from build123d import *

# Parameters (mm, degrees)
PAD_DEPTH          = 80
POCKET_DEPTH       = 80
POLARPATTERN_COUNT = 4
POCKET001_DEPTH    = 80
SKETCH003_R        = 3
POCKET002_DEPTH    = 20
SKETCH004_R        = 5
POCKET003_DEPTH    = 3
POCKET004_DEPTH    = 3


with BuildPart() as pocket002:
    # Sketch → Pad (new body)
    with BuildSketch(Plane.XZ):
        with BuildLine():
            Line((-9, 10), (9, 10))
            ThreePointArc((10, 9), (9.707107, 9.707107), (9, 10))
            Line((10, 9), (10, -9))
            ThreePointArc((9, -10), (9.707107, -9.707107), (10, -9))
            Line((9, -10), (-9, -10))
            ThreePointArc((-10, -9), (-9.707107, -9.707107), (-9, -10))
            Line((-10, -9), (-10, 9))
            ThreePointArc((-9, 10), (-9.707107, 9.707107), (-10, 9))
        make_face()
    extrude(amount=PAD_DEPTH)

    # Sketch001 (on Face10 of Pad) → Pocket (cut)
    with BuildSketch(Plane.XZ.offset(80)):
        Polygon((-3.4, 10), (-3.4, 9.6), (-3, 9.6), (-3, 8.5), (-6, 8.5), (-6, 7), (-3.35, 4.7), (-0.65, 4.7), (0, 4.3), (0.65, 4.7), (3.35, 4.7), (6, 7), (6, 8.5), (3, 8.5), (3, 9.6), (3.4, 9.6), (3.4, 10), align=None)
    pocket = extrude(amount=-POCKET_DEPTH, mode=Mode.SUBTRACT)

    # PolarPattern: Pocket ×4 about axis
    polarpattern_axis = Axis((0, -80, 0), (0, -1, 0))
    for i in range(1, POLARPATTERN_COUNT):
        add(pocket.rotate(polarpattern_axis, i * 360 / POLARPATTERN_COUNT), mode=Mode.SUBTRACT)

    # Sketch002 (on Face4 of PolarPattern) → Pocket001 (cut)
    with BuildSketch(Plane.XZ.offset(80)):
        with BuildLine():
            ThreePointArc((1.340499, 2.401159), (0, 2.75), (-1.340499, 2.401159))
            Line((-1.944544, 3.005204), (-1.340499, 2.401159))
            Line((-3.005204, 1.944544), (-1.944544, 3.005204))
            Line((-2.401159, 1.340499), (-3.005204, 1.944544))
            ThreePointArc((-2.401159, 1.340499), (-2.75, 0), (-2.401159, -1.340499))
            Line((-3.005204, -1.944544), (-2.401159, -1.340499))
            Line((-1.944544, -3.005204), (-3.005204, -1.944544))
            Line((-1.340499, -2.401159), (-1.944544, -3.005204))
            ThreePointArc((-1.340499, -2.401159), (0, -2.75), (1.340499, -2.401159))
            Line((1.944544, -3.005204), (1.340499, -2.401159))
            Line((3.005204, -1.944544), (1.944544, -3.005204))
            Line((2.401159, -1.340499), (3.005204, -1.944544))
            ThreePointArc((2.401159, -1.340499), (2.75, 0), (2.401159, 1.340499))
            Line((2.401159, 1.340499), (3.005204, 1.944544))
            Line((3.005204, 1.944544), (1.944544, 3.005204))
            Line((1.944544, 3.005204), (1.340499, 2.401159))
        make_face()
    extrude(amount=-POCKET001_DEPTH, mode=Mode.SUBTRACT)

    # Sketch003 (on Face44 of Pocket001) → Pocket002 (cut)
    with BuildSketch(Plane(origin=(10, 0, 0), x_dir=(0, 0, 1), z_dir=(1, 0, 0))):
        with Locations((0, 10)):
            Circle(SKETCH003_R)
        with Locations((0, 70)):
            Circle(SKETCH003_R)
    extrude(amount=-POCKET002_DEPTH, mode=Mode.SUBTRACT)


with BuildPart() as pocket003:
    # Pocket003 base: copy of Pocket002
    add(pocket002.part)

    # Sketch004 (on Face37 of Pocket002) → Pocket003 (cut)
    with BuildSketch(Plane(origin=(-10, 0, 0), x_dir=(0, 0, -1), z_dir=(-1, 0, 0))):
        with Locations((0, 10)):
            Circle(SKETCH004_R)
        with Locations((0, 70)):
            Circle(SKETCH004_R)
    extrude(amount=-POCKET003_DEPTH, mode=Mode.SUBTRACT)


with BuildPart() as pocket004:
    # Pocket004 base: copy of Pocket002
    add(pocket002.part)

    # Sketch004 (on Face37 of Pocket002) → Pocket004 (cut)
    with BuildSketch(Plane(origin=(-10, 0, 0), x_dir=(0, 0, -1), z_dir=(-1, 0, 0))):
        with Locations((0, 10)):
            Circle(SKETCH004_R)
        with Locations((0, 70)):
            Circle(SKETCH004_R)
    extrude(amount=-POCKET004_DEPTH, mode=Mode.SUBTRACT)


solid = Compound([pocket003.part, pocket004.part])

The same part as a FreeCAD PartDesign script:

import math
import FreeCAD as App
import Part
import Sketcher

V = App.Vector


def add_polygon(sketch, points):
    """Adds a closed chain of lines whose ends are joined by coincident constraints."""
    first, n = sketch.GeometryCount, len(points)
    for a, b in zip(points, points[1:] + points[:1]):
        sketch.addGeometry(Part.LineSegment(App.Vector(*a, 0), App.Vector(*b, 0)), False)
    for i in range(n):
        sketch.addConstraint(Sketcher.Constraint("Coincident", first + i, 2, first + (i + 1) % n, 1))

doc = App.newDocument("Part")
body = doc.addObject("PartDesign::Body", "Body")

# Sketch on XZ plane
sketch1 = body.newObject("Sketcher::SketchObject", "Sketch")
sketch1.AttachmentSupport = (doc.getObject("XZ_Plane"), [""])
sketch1.MapMode = "FlatFace"
sketch1.addGeometry(Part.LineSegment(V(9, 10, 0), V(-9, 10, 0)), False)
sketch1.addGeometry(Part.ArcOfCircle(Part.Circle(V(-9, 9, 0), V(0, 0, 1), 1), math.radians(90), math.radians(180)), False)
sketch1.addGeometry(Part.LineSegment(V(-10, 9, 0), V(-10, -9, 0)), False)
sketch1.addGeometry(Part.ArcOfCircle(Part.Circle(V(-9, -9, 0), V(0, 0, 1), 1), math.radians(180), math.radians(270)), False)
sketch1.addGeometry(Part.LineSegment(V(-9, -10, 0), V(9, -10, 0)), False)
sketch1.addGeometry(Part.ArcOfCircle(Part.Circle(V(9, -9, 0), V(0, 0, 1), 1), math.radians(-90), math.radians(0)), False)
sketch1.addGeometry(Part.LineSegment(V(10, -9, 0), V(10, 9, 0)), False)
sketch1.addGeometry(Part.ArcOfCircle(Part.Circle(V(9, 9, 0), V(0, 0, 1), 1), math.radians(0), math.radians(90)), False)
sketch1.addConstraint(Sketcher.Constraint("Tangent", 0, 2, 1, 1))
sketch1.addConstraint(Sketcher.Constraint("Tangent", 1, 2, 2, 1))
sketch1.addConstraint(Sketcher.Constraint("Tangent", 2, 2, 3, 1))
sketch1.addConstraint(Sketcher.Constraint("Tangent", 3, 2, 4, 1))
sketch1.addConstraint(Sketcher.Constraint("Tangent", 4, 2, 5, 1))
sketch1.addConstraint(Sketcher.Constraint("Tangent", 5, 2, 6, 1))
sketch1.addConstraint(Sketcher.Constraint("Tangent", 6, 2, 7, 1))
sketch1.addConstraint(Sketcher.Constraint("Tangent", 7, 2, 0, 1))
sketch1.addConstraint(Sketcher.Constraint("Horizontal", 0))
sketch1.addConstraint(Sketcher.Constraint("Vertical", 2))
sketch1.addConstraint(Sketcher.Constraint("Horizontal", 4))
sketch1.addConstraint(Sketcher.Constraint("Vertical", 6))
sketch1.addConstraint(Sketcher.Constraint("Equal", 1, 3))
sketch1.addConstraint(Sketcher.Constraint("Equal", 3, 5))
sketch1.addConstraint(Sketcher.Constraint("Equal", 5, 7))
sketch1.addConstraint(Sketcher.Constraint("Symmetric", 1, 3, 5, 3, -1, 1))
sketch1.addConstraint(Sketcher.Constraint("Equal", 4, 2))
sketch1.addConstraint(Sketcher.Constraint("Radius", 1, 0.999999))
sketch1.addConstraint(Sketcher.Constraint("DistanceX", 0, 2, 0, 1, 18.0))
pad1 = body.newObject("PartDesign::Pad", "Pad")
pad1.Profile = sketch1
pad1.Length = 80

# Sketch on XZ plane
sketch2 = body.newObject("Sketcher::SketchObject", "Sketch001")
sketch2.AttachmentSupport = (doc.getObject("XZ_Plane"), [""])
sketch2.MapMode = "FlatFace"
sketch2.AttachmentOffset = App.Placement(V(0, 0, 80), App.Rotation())
add_polygon(sketch2, [(-3.4, 10), (-3.4, 9.6), (-3, 9.6), (-3, 8.5), (-6, 8.5), (-6, 7), (-3.35, 4.7), (-0.65, 4.7), (0, 4.3), (0.65, 4.7), (3.35, 4.7), (6, 7), (6, 8.5), (3, 8.5), (3, 9.6), (3.4, 9.6), (3.4, 10)])  # lines 0-16
sketch2.addConstraint(Sketcher.Constraint("Vertical", 0))
sketch2.addConstraint(Sketcher.Constraint("Horizontal", 1))
sketch2.addConstraint(Sketcher.Constraint("Vertical", 2))
sketch2.addConstraint(Sketcher.Constraint("Horizontal", 3))
sketch2.addConstraint(Sketcher.Constraint("Vertical", 4))
sketch2.addConstraint(Sketcher.Constraint("Horizontal", 6))
sketch2.addConstraint(Sketcher.Constraint("Horizontal", 9))
sketch2.addConstraint(Sketcher.Constraint("Vertical", 11))
sketch2.addConstraint(Sketcher.Constraint("Horizontal", 12))
sketch2.addConstraint(Sketcher.Constraint("Vertical", 13))
sketch2.addConstraint(Sketcher.Constraint("Horizontal", 14))
sketch2.addConstraint(Sketcher.Constraint("Vertical", 15))
sketch2.addConstraint(Sketcher.Constraint("Horizontal", 16))
sketch2.addConstraint(Sketcher.Constraint("Symmetric", 6, 2, 8, 2, -2))
sketch2.addConstraint(Sketcher.Constraint("Symmetric", 4, 2, 10, 2, -2))
sketch2.addConstraint(Sketcher.Constraint("Symmetric", 2, 2, 12, 2, -2))
sketch2.addConstraint(Sketcher.Constraint("Symmetric", 0, 2, 14, 2, -2))
sketch2.addConstraint(Sketcher.Constraint("PointOnObject", 7, 2, -2))
sketch2.addConstraint(Sketcher.Constraint("Equal", 6, 9))
sketch2.addConstraint(Sketcher.Constraint("Equal", 14, 0))
sketch2.addConstraint(Sketcher.Constraint("DistanceX", 3, 2, 3, 1, 3.0))
sketch2.addConstraint(Sketcher.Constraint("DistanceX", 1, 1, 1, 2, 0.4))
sketch2.addConstraint(Sketcher.Constraint("DistanceX", 6, 1, 6, 2, 2.7))
sketch2.addConstraint(Sketcher.Constraint("DistanceX", 16, 2, 16, 1, 6.8))
sketch2.addConstraint(Sketcher.Constraint("DistanceY", 2, 2, 2, 1, 1.1))
sketch2.addConstraint(Sketcher.Constraint("DistanceY", 4, 2, 4, 1, 1.5))
sketch2.addConstraint(Sketcher.Constraint("DistanceY", -1, 1, 4, 2, 7.0))
sketch2.addConstraint(Sketcher.Constraint("DistanceX", 5, 2, 8, 2, 4.0))
sketch2.addConstraint(Sketcher.Constraint("DistanceY", -1, 1, 5, 2, 4.7))
sketch2.addConstraint(Sketcher.Constraint("DistanceY", -1, 1, 7, 2, 4.3))
pocket1 = body.newObject("PartDesign::Pocket", "Pocket")
pocket1.Profile = sketch2
pocket1.Length = 80
doc.recompute()

polarpattern = body.newObject("PartDesign::PolarPattern", "PolarPattern")
polarpattern.Originals = [pocket1]
polarpattern.Axis = (doc.getObject("Y_Axis"), [""])
polarpattern.Angle = 360
polarpattern.Occurrences = 4
body.Tip = polarpattern

# Sketch on XZ plane
sketch3 = body.newObject("Sketcher::SketchObject", "Sketch002")
sketch3.AttachmentSupport = (doc.getObject("XZ_Plane"), [""])
sketch3.MapMode = "FlatFace"
sketch3.AttachmentOffset = App.Placement(V(0, 0, 80), App.Rotation())
sketch3.addGeometry(Part.ArcOfCircle(Part.Circle(V(0, 0, 0), V(0, 0, 1), 2.8), math.radians(61), math.radians(119)), False)
sketch3.addGeometry(Part.LineSegment(V(-1.3, 2.4, 0), V(-1.9, 3, 0)), False)
sketch3.addGeometry(Part.LineSegment(V(-1.9, 3, 0), V(-3, 1.9, 0)), False)
sketch3.addGeometry(Part.LineSegment(V(-3, 1.9, 0), V(-2.4, 1.3, 0)), False)
sketch3.addGeometry(Part.ArcOfCircle(Part.Circle(V(0, 0, 0), V(0, 0, 1), 2.8), math.radians(151), math.radians(209)), False)
sketch3.addGeometry(Part.LineSegment(V(-2.4, -1.3, 0), V(-3, -1.9, 0)), False)
sketch3.addGeometry(Part.LineSegment(V(-3, -1.9, 0), V(-1.9, -3, 0)), False)
sketch3.addGeometry(Part.LineSegment(V(-1.9, -3, 0), V(-1.3, -2.4, 0)), False)
sketch3.addGeometry(Part.ArcOfCircle(Part.Circle(V(0, 0, 0), V(0, 0, 1), 2.8), math.radians(-119), math.radians(-61)), False)
sketch3.addGeometry(Part.LineSegment(V(1.3, -2.4, 0), V(1.9, -3, 0)), False)
sketch3.addGeometry(Part.LineSegment(V(1.9, -3, 0), V(3, -1.9, 0)), False)
sketch3.addGeometry(Part.LineSegment(V(3, -1.9, 0), V(2.4, -1.3, 0)), False)
sketch3.addGeometry(Part.ArcOfCircle(Part.Circle(V(0, 0, 0), V(0, 0, 1), 2.8), math.radians(-29), math.radians(29)), False)
sketch3.addGeometry(Part.LineSegment(V(2.4, 1.3, 0), V(3, 1.9, 0)), False)
sketch3.addGeometry(Part.LineSegment(V(3, 1.9, 0), V(1.9, 3, 0)), False)
sketch3.addGeometry(Part.LineSegment(V(1.9, 3, 0), V(1.3, 2.4, 0)), False)
sketch3.addConstraint(Sketcher.Constraint("Coincident", 0, 2, 1, 1))
sketch3.addConstraint(Sketcher.Constraint("Coincident", 1, 2, 2, 1))
sketch3.addConstraint(Sketcher.Constraint("Coincident", 2, 2, 3, 1))
sketch3.addConstraint(Sketcher.Constraint("Coincident", 3, 2, 4, 1))
sketch3.addConstraint(Sketcher.Constraint("Coincident", 4, 2, 5, 1))
sketch3.addConstraint(Sketcher.Constraint("Coincident", 5, 2, 6, 1))
sketch3.addConstraint(Sketcher.Constraint("Coincident", 6, 2, 7, 1))
sketch3.addConstraint(Sketcher.Constraint("Coincident", 7, 2, 8, 1))
sketch3.addConstraint(Sketcher.Constraint("Coincident", 8, 2, 9, 1))
sketch3.addConstraint(Sketcher.Constraint("Coincident", 9, 2, 10, 1))
sketch3.addConstraint(Sketcher.Constraint("Coincident", 10, 2, 11, 1))
sketch3.addConstraint(Sketcher.Constraint("Coincident", 11, 2, 12, 1))
sketch3.addConstraint(Sketcher.Constraint("Coincident", 12, 2, 13, 1))
sketch3.addConstraint(Sketcher.Constraint("Coincident", 13, 2, 14, 1))
sketch3.addConstraint(Sketcher.Constraint("Coincident", 14, 2, 15, 1))
sketch3.addConstraint(Sketcher.Constraint("Coincident", 15, 2, 0, 1))
sketch3.addConstraint(Sketcher.Constraint("Coincident", 0, 3, -1, 1))
sketch3.addConstraint(Sketcher.Constraint("Coincident", 4, 3, -1, 1))
sketch3.addConstraint(Sketcher.Constraint("Coincident", 8, 3, -1, 1))
sketch3.addConstraint(Sketcher.Constraint("Coincident", 12, 3, -1, 1))
sketch3.addConstraint(Sketcher.Constraint("Equal", 0, 4))
sketch3.addConstraint(Sketcher.Constraint("Equal", 4, 8))
sketch3.addConstraint(Sketcher.Constraint("Equal", 8, 12))
sketch3.addConstraint(Sketcher.Constraint("Symmetric", 1, 2, 9, 2, -1, 1))
sketch3.addConstraint(Sketcher.Constraint("Symmetric", 2, 2, 10, 2, -1, 1))
sketch3.addConstraint(Sketcher.Constraint("Symmetric", 5, 2, 13, 2, -1, 1))
sketch3.addConstraint(Sketcher.Constraint("Symmetric", 6, 2, 14, 2, -1, 1))
sketch3.addConstraint(Sketcher.Constraint("Symmetric", 6, 2, 9, 2, -2))
sketch3.addConstraint(Sketcher.Constraint("Symmetric", 5, 2, 10, 2, -2))
sketch3.addConstraint(Sketcher.Constraint("Perpendicular", 1, 2))
sketch3.addConstraint(Sketcher.Constraint("Perpendicular", 2, 3))
sketch3.addConstraint(Sketcher.Constraint("Perpendicular", 3, 5))
sketch3.addConstraint(Sketcher.Constraint("Perpendicular", 5, 6))
sketch3.addConstraint(Sketcher.Constraint("Perpendicular", 6, 7))
sketch3.addConstraint(Sketcher.Constraint("Perpendicular", 7, 9))
sketch3.addConstraint(Sketcher.Constraint("Perpendicular", 10, 11))
sketch3.addConstraint(Sketcher.Constraint("Perpendicular", 11, 13))
sketch3.addConstraint(Sketcher.Constraint("Perpendicular", 14, 15))
sketch3.addConstraint(Sketcher.Constraint("Equal", 1, 3))
sketch3.addConstraint(Sketcher.Constraint("Distance", 2, 1.5))
sketch3.addConstraint(Sketcher.Constraint("Radius", 0, 2.750003))
sketch3.addConstraint(Sketcher.Constraint("DistanceY", 8, 3, 1, 2, 3.005201))
pocket2 = body.newObject("PartDesign::Pocket", "Pocket001")
pocket2.Profile = sketch3
pocket2.Length = 80

# Sketch on YZ plane
sketch4 = body.newObject("Sketcher::SketchObject", "Sketch003")
sketch4.AttachmentSupport = (doc.getObject("YZ_Plane"), [""])
sketch4.MapMode = "FlatFace"
sketch4.AttachmentOffset = App.Placement(V(0, 0, 10), App.Rotation())
sketch4.addGeometry(Part.Circle(V(-10, 0, 0), V(0, 0, 1), 3), False)
sketch4.addGeometry(Part.Circle(V(-70, 0, 0), V(0, 0, 1), 3), False)
sketch4.addConstraint(Sketcher.Constraint("Equal", 0, 1))
sketch4.addConstraint(Sketcher.Constraint("PointOnObject", 0, 3, -1))
sketch4.addConstraint(Sketcher.Constraint("PointOnObject", 1, 3, -1))
sketch4.addConstraint(Sketcher.Constraint("Diameter", 0, 6.0))
sketch4.addConstraint(Sketcher.Constraint("DistanceX", 0, 3, -1, 1, 10.0))
sketch4.addConstraint(Sketcher.Constraint("DistanceX", 1, 3, -1, 1, 70.0))
pocket3 = body.newObject("PartDesign::Pocket", "Pocket002")
pocket3.Profile = sketch4
pocket3.Length = 20
body2 = doc.addObject("PartDesign::Body", "Body001")
doc.recompute()

body2.BaseFeature = body
doc.recompute()

# Sketch on YZ plane
sketch5 = body2.newObject("Sketcher::SketchObject", "Sketch004")
sketch5.AttachmentSupport = (doc.getObject("YZ_Plane001"), [""])
sketch5.MapMode = "FlatFace"
sketch5.AttachmentOffset = App.Placement(V(0, 0, -10), App.Rotation())
sketch5.addGeometry(Part.Circle(V(-10, 0, 0), V(0, 0, 1), 5), False)
sketch5.addGeometry(Part.Circle(V(-70, 0, 0), V(0, 0, 1), 5), False)
sketch5.addConstraint(Sketcher.Constraint("Equal", 0, 1))
sketch5.addConstraint(Sketcher.Constraint("PointOnObject", 0, 3, -1))
sketch5.addConstraint(Sketcher.Constraint("PointOnObject", 1, 3, -1))
sketch5.addConstraint(Sketcher.Constraint("Diameter", 0, 10.0))
sketch5.addConstraint(Sketcher.Constraint("DistanceX", 0, 3, -1, 1, 10.0))
sketch5.addConstraint(Sketcher.Constraint("DistanceX", 1, 3, -1, 1, 70.0))
pocket4 = body2.newObject("PartDesign::Pocket", "Pocket003")
pocket4.Profile = sketch5
pocket4.Length = 3
pocket4.Reversed = True

# Sketch on YZ plane
sketch6 = body.newObject("Sketcher::SketchObject", "Sketch005")
sketch6.AttachmentSupport = (doc.getObject("YZ_Plane"), [""])
sketch6.MapMode = "FlatFace"
sketch6.AttachmentOffset = App.Placement(V(0, 0, -10), App.Rotation())
sketch6.addGeometry(Part.Circle(V(-10, 0, 0), V(0, 0, 1), 5), False)
sketch6.addGeometry(Part.Circle(V(-70, 0, 0), V(0, 0, 1), 5), False)
sketch6.addConstraint(Sketcher.Constraint("Equal", 0, 1))
sketch6.addConstraint(Sketcher.Constraint("PointOnObject", 0, 3, -1))
sketch6.addConstraint(Sketcher.Constraint("PointOnObject", 1, 3, -1))
sketch6.addConstraint(Sketcher.Constraint("Diameter", 0, 10.0))
sketch6.addConstraint(Sketcher.Constraint("DistanceX", 0, 3, -1, 1, 10.0))
sketch6.addConstraint(Sketcher.Constraint("DistanceX", 1, 3, -1, 1, 70.0))
pocket5 = body.newObject("PartDesign::Pocket", "Pocket004")
pocket5.Profile = sketch6
pocket5.Length = 3
pocket5.Reversed = True

doc.recompute()
